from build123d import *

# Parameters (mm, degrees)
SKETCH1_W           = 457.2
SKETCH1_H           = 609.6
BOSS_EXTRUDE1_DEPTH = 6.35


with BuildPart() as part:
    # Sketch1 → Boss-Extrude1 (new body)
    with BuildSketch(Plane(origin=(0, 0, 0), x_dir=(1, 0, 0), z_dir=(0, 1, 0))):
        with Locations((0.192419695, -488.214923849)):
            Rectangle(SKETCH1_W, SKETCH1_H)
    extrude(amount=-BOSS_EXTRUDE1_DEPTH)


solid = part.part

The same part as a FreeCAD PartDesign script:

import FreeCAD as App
import Part
import Sketcher
Q = App.Units.Quantity


def add_polygon(sketch, points):
    """Adds a closed chain of lines whose ends are joined by coincident constraints."""
    first, n = sketch.GeometryCount, len(points)
    for a, b in zip(points, points[1:] + points[:1]):
        sketch.addGeometry(Part.LineSegment(App.Vector(*a, 0), App.Vector(*b, 0)), False)
    for i in range(n):
        sketch.addConstraint(Sketcher.Constraint("Coincident", first + i, 2, first + (i + 1) % n, 1))

doc = App.newDocument("Part")
body = doc.addObject("PartDesign::Body", "Body")

# Sketch on XZ plane
sketch1 = body.newObject("Sketcher::SketchObject", "Sketch")
sketch1.AttachmentSupport = (doc.getObject("XZ_Plane"), [""])
sketch1.MapMode = "FlatFace"
add_polygon(sketch1, [(-228, 183), (-228, 793), (229, 793), (229, 183)])  # lines 0-3
sketch1.addConstraint([
    Sketcher.Constraint("Vertical", 0),
    Sketcher.Constraint("Horizontal", 1),
    Sketcher.Constraint("Vertical", 2),
    Sketcher.Constraint("Horizontal", 3),
    Sketcher.Constraint("DistanceX", 1, 1, 1, 2, Q("18 in")),
    Sketcher.Constraint("DistanceY", 0, 1, 0, 2, Q("24 in")),
    Sketcher.Constraint("DistanceX", 0, 2, -1, 1, Q("228.40758 mm")),
    Sketcher.Constraint("DistanceY", -1, 1, 0, 2, Q("793.014924 mm")),
])
pad1 = body.newObject("PartDesign::Pad", "Pad")
pad1.Profile = sketch1
pad1.Length = Q("0.25 in")

doc.recompute()
